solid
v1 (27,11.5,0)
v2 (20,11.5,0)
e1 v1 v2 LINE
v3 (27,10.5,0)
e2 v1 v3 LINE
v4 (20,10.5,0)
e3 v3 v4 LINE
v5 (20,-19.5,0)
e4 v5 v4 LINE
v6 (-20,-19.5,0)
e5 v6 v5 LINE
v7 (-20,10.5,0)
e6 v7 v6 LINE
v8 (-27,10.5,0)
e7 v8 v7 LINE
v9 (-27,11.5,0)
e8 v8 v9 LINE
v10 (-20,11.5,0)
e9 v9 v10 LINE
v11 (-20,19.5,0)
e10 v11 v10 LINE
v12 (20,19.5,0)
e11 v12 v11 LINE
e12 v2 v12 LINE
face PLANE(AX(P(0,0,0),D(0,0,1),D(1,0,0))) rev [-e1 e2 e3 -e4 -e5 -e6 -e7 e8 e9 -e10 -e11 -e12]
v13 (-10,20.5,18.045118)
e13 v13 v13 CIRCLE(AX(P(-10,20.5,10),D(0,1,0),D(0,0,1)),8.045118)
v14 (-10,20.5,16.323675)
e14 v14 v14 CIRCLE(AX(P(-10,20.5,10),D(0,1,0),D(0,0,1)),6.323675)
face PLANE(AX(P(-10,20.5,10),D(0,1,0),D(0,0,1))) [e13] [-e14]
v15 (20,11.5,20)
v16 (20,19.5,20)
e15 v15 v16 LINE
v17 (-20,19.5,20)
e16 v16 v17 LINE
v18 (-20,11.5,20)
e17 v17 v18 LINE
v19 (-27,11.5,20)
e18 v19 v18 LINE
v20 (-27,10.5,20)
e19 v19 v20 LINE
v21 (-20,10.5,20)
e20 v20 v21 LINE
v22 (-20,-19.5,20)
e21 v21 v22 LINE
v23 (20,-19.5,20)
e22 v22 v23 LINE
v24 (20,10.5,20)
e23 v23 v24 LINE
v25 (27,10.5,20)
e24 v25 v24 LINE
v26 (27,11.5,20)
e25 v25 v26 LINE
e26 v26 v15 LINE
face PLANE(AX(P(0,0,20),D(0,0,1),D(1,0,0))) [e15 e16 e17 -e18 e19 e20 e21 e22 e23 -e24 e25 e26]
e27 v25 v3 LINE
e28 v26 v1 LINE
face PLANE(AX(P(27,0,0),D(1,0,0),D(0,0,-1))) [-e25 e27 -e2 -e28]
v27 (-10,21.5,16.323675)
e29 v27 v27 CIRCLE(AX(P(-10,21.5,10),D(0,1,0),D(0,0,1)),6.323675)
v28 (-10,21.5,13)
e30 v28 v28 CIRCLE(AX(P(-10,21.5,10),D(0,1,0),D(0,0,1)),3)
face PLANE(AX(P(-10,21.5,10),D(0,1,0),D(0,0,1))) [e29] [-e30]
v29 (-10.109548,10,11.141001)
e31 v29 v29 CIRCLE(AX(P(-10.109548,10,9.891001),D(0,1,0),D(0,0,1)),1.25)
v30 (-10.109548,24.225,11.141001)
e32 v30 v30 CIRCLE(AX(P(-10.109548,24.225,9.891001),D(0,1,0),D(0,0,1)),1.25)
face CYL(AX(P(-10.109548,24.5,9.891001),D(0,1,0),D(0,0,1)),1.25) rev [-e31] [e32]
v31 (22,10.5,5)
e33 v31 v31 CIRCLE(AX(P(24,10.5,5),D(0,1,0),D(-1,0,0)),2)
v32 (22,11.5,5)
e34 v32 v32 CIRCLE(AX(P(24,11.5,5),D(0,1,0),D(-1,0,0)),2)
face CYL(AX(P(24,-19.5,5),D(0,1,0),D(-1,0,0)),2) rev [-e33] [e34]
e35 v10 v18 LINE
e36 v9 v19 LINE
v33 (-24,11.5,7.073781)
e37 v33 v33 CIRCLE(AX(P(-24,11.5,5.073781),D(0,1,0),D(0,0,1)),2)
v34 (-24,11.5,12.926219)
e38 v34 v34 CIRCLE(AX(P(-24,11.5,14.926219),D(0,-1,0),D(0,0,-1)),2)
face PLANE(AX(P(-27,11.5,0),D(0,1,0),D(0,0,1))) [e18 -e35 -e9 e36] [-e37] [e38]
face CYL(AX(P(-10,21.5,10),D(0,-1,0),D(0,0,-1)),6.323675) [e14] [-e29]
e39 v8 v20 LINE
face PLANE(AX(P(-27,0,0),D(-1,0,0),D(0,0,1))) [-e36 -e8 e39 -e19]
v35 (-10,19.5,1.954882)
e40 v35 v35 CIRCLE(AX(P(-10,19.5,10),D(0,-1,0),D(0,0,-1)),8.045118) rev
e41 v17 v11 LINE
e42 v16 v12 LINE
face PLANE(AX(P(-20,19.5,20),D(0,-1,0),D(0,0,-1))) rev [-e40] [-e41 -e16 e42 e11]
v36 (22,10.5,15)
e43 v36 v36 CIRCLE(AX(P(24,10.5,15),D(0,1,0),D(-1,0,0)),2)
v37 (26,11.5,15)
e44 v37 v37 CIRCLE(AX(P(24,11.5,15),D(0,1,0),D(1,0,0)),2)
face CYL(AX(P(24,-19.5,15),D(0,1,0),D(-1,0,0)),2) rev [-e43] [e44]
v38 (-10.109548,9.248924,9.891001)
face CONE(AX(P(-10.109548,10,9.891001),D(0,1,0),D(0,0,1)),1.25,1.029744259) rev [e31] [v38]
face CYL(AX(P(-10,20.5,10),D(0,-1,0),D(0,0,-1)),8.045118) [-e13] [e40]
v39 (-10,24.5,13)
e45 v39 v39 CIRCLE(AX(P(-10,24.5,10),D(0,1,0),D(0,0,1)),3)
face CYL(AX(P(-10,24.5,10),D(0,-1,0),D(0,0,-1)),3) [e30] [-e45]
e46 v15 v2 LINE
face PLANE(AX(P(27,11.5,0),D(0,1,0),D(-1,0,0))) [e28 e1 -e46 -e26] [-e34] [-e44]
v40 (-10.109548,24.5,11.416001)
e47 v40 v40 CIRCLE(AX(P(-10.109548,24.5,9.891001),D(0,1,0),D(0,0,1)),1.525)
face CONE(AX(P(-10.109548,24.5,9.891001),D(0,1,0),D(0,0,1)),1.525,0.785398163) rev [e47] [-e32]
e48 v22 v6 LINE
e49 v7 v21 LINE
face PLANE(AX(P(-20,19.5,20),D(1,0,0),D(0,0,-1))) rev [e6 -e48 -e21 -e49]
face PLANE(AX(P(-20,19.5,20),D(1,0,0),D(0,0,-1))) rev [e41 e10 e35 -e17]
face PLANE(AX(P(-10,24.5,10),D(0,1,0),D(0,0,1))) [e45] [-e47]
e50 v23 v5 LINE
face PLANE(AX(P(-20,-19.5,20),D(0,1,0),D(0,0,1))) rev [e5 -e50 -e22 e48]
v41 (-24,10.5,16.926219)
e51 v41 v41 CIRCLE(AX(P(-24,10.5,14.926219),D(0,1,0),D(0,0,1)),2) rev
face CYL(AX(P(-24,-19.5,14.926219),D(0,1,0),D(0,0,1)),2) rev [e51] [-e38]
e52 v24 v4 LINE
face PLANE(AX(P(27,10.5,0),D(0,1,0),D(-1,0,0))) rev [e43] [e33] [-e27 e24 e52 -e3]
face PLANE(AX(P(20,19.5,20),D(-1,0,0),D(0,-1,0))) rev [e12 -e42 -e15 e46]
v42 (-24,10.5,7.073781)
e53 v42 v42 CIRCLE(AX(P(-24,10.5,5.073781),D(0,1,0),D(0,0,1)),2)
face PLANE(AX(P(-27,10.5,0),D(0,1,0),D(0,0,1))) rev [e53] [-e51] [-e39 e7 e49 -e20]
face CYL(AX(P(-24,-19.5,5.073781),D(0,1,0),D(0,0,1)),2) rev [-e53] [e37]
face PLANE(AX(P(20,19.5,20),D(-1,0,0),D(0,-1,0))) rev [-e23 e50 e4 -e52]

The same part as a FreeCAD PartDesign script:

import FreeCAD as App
import Part
import Sketcher

V = App.Vector
Q = App.Units.Quantity

doc = App.newDocument("Part")
body = doc.addObject("PartDesign::Body", "Body")

sketch1 = body.newObject("Sketcher::SketchObject", "Sketch")
sketch1.AttachmentSupport = (doc.getObject("XY_Plane"), [""])
sketch1.MapMode = "FlatFace"
sketch1.addGeometry([
    Part.LineSegment(V(-20, 20, 0), V(-20, -20, 0)),
    Part.LineSegment(V(-20, -20, 0), V(20, -20, 0)),
    Part.LineSegment(V(20, -20, 0), V(20, 20, 0)),
    Part.LineSegment(V(20, 20, 0), V(-20, 20, 0)),
], False)
sketch1.addConstraint([
    Sketcher.Constraint("Coincident", 0, 2, 1, 1),
    Sketcher.Constraint("Coincident", 1, 2, 2, 1),
    Sketcher.Constraint("Coincident", 2, 2, 3, 1),
    Sketcher.Constraint("Coincident", 3, 2, 0, 1),
    Sketcher.Constraint("Vertical", 0),
    Sketcher.Constraint("Horizontal", 1),
    Sketcher.Constraint("Vertical", 2),
    Sketcher.Constraint("Horizontal", 3),
    Sketcher.Constraint("Symmetric", 0, 2, 2, 2, -1, 1),
    Sketcher.Constraint("DistanceX", 1, 1, 1, 2, Q("40 mm")),
    Sketcher.Constraint("DistanceY", 0, 2, 0, 1, Q("39 mm")),
])
pad1 = body.newObject("PartDesign::Pad", "Pad")
pad1.Profile = sketch1
pad1.Length = 20

sketch2 = body.newObject("Sketcher::SketchObject", "Sketch001")
sketch2.AttachmentSupport = (doc.getObject("YZ_Plane"), [""])
sketch2.MapMode = "FlatFace"
sketch2.AttachmentOffset = App.Placement(V(0, 0, -20), App.Rotation())
sketch2.addGeometry([
    Part.LineSegment(V(11.5, 0, 0), V(10.5, 0, 0)),
    Part.LineSegment(V(10.5, 0, 0), V(10.5, 20, 0)),
    Part.LineSegment(V(10.5, 20, 0), V(11.5, 20, 0)),
    Part.LineSegment(V(11.5, 20, 0), V(11.5, 0, 0)),
], False)
sketch2.addConstraint([
    Sketcher.Constraint("Coincident", 0, 2, 1, 1),
    Sketcher.Constraint("Coincident", 1, 2, 2, 1),
    Sketcher.Constraint("Coincident", 2, 2, 3, 1),
    Sketcher.Constraint("Coincident", 3, 2, 0, 1),
    Sketcher.Constraint("Horizontal", 0),
    Sketcher.Constraint("Vertical", 1),
    Sketcher.Constraint("Horizontal", 2),
    Sketcher.Constraint("Vertical", 3),
    Sketcher.Constraint("PointOnObject", 0, 2, -1),
    Sketcher.Constraint("DistanceX", 0, 2, 0, 1, Q("1 mm")),
    Sketcher.Constraint("DistanceY", 1, 1, 1, 2, Q("20 mm")),
    Sketcher.Constraint("DistanceX", -1, 1, 0, 2, Q("10.5 mm")),
])
pad2 = body.newObject("PartDesign::Pad", "Pad001")
pad2.Profile = sketch2
pad2.Length = 7
pad2.Reversed = True

sketch3 = body.newObject("Sketcher::SketchObject", "Sketch002")
sketch3.AttachmentSupport = (doc.getObject("YZ_Plane"), [""])
sketch3.MapMode = "FlatFace"
sketch3.AttachmentOffset = App.Placement(V(0, 0, 20), App.Rotation())
sketch3.addGeometry([
    Part.LineSegment(V(11.5, 20, 0), V(10.5, 20, 0)),
    Part.LineSegment(V(10.5, 20, 0), V(10.5, 0, 0)),
    Part.LineSegment(V(10.5, 0, 0), V(11.5, 0, 0)),
    Part.LineSegment(V(11.5, 0, 0), V(11.5, 20, 0)),
], False)
sketch3.addConstraint([
    Sketcher.Constraint("Coincident", 0, 2, 1, 1),
    Sketcher.Constraint("Coincident", 1, 2, 2, 1),
    Sketcher.Constraint("Coincident", 2, 2, 3, 1),
    Sketcher.Constraint("Coincident", 3, 2, 0, 1),
    Sketcher.Constraint("Horizontal", 0),
    Sketcher.Constraint("Vertical", 1),
    Sketcher.Constraint("Horizontal", 2),
    Sketcher.Constraint("Vertical", 3),
    Sketcher.Constraint("PointOnObject", 1, 2, -1),
    Sketcher.Constraint("DistanceX", 0, 2, 0, 1, Q("1 mm")),
    Sketcher.Constraint("DistanceY", 1, 2, 1, 1, Q("20 mm")),
    Sketcher.Constraint("DistanceX", -1, 1, 0, 2, Q("10.5 mm")),
])
pad3 = body.newObject("PartDesign::Pad", "Pad002")
pad3.Profile = sketch3
pad3.Length = 7

sketch4 = body.newObject("Sketcher::SketchObject", "Sketch003")
sketch4.AttachmentSupport = (doc.getObject("XZ_Plane"), [""])
sketch4.MapMode = "FlatFace"
sketch4.AttachmentOffset = App.Placement(V(0, 0, -11.5), App.Rotation())
sketch4.addGeometry([
    Part.Circle(V(-24, 5.1, 0), V(0, 0, 1), 2),
    Part.Circle(V(-24, 14.9, 0), V(0, 0, 1), 2),
], False)
sketch4.addConstraint([
    Sketcher.Constraint("Equal", 0, 1),
    Sketcher.Constraint("Vertical", 0, 3, 1, 3),
    Sketcher.Constraint("Diameter", 0, Q("4 mm")),
    Sketcher.Constraint("DistanceX", 0, 3, -1, 1, Q("24 mm")),
    Sketcher.Constraint("DistanceY", -1, 1, 0, 3, Q("5.073781 mm")),
    Sketcher.Constraint("DistanceY", -1, 1, 1, 3, Q("14.926219 mm")),
])
pocket1 = body.newObject("PartDesign::Pocket", "Pocket")
pocket1.Profile = sketch4
pocket1.Type = "ThroughAll"
pocket1.Reversed = True

sketch5 = body.newObject("Sketcher::SketchObject", "Sketch004")
sketch5.AttachmentSupport = (doc.getObject("XZ_Plane"), [""])
sketch5.MapMode = "FlatFace"
sketch5.AttachmentOffset = App.Placement(V(0, 0, -11.5), App.Rotation())
sketch5.addGeometry([
    Part.Circle(V(24, 5, 0), V(0, 0, 1), 2),
    Part.Circle(V(24, 15, 0), V(0, 0, 1), 2),
], False)
sketch5.addConstraint([
    Sketcher.Constraint("Equal", 0, 1),
    Sketcher.Constraint("Vertical", 0, 3, 1, 3),
    Sketcher.Constraint("Diameter", 0, Q("4 mm")),
    Sketcher.Constraint("DistanceX", -1, 1, 0, 3, Q("24 mm")),
    Sketcher.Constraint("DistanceY", -1, 1, 0, 3, Q("5 mm")),
    Sketcher.Constraint("DistanceY", -1, 1, 1, 3, Q("15 mm")),
])
pocket2 = body.newObject("PartDesign::Pocket", "Pocket001")
pocket2.Profile = sketch5
pocket2.Type = "ThroughAll"
pocket2.Reversed = True

sketch6 = body.newObject("Sketcher::SketchObject", "Sketch005")
sketch6.AttachmentSupport = (doc.getObject("XZ_Plane"), [""])
sketch6.MapMode = "FlatFace"
sketch6.AttachmentOffset = App.Placement(V(0, 0, -19.5), App.Rotation())
sketch6.addGeometry(Part.Circle(V(-10, 10, 0), V(0, 0, 1), 8), False)
sketch6.addConstraint([
    Sketcher.Constraint("DistanceX", 0, 3, -1, 1, Q("10 mm")),
    Sketcher.Constraint("DistanceY", -1, 1, 0, 3, Q("10 mm")),
    Sketcher.Constraint("Diameter", 0, Q("16.090237 mm")),
])
pad4 = body.newObject("PartDesign::Pad", "Pad003")
pad4.Profile = sketch6
pad4.Length = 1
pad4.Reversed = True

sketch7 = body.newObject("Sketcher::SketchObject", "Sketch006")
sketch7.AttachmentSupport = (doc.getObject("XZ_Plane"), [""])
sketch7.MapMode = "FlatFace"
sketch7.AttachmentOffset = App.Placement(V(0, 0, -20.5), App.Rotation())
sketch7.addGeometry(Part.Circle(V(-10, 10, 0), V(0, 0, 1), 6), False)
sketch7.addConstraint([
    Sketcher.Constraint("DistanceX", 0, 3, -1, 1, Q("10 mm")),
    Sketcher.Constraint("DistanceY", -1, 1, 0, 3, Q("10 mm")),
    Sketcher.Constraint("Diameter", 0, Q("12.64735 mm")),
])
pad5 = body.newObject("PartDesign::Pad", "Pad004")
pad5.Profile = sketch7
pad5.Length = 1
pad5.Reversed = True

sketch8 = body.newObject("Sketcher::SketchObject", "Sketch007")
sketch8.AttachmentSupport = (doc.getObject("XZ_Plane"), [""])
sketch8.MapMode = "FlatFace"
sketch8.AttachmentOffset = App.Placement(V(0, 0, -21.5), App.Rotation())
sketch8.addGeometry(Part.Circle(V(-10, 10, 0), V(0, 0, 1), 3), False)
sketch8.addConstraint([
    Sketcher.Constraint("Diameter", 0, Q("6 mm")),
    Sketcher.Constraint("DistanceX", 0, 3, -1, 1, Q("10 mm")),
    Sketcher.Constraint("DistanceY", -1, 1, 0, 3, Q("10 mm")),
])
pad6 = body.newObject("PartDesign::Pad", "Pad005")
pad6.Profile = sketch8
pad6.Length = 3
pad6.Reversed = True

sketch9 = body.newObject("Sketcher::SketchObject", "Sketch008")
sketch9.AttachmentSupport = (doc.getObject("XZ_Plane"), [""])
sketch9.MapMode = "FlatFace"
sketch9.AttachmentOffset = App.Placement(V(0, 0, -24.5), App.Rotation())
sketch9.addGeometry(Part.Circle(V(-10.1, 9.9, 0), V(0, 0, 1), 1.2), False)
sketch9.addConstraint([
    Sketcher.Constraint("Diameter", 0, Q("2.5 mm")),
    Sketcher.Constraint("DistanceY", -1, 1, 0, 3, Q("9.891001 mm")),
    Sketcher.Constraint("DistanceX", 0, 3, -1, 1, Q("10.109548 mm")),
])
doc.recompute()
hole = body.newObject("PartDesign::Hole", "Hole")
hole.Profile = sketch9
hole.ThreadType = "None"
hole.Diameter = 2.5
hole.DepthType = "Dimension"
hole.Depth = 14.5
hole.DrillPoint = "Angled"
hole.DrillPointAngle = 118
hole.HoleCutType = "Countersink"
hole.HoleCutDiameter = 3.05
hole.HoleCutCountersinkAngle = 90
hole.Reversed = True

doc.recompute()
